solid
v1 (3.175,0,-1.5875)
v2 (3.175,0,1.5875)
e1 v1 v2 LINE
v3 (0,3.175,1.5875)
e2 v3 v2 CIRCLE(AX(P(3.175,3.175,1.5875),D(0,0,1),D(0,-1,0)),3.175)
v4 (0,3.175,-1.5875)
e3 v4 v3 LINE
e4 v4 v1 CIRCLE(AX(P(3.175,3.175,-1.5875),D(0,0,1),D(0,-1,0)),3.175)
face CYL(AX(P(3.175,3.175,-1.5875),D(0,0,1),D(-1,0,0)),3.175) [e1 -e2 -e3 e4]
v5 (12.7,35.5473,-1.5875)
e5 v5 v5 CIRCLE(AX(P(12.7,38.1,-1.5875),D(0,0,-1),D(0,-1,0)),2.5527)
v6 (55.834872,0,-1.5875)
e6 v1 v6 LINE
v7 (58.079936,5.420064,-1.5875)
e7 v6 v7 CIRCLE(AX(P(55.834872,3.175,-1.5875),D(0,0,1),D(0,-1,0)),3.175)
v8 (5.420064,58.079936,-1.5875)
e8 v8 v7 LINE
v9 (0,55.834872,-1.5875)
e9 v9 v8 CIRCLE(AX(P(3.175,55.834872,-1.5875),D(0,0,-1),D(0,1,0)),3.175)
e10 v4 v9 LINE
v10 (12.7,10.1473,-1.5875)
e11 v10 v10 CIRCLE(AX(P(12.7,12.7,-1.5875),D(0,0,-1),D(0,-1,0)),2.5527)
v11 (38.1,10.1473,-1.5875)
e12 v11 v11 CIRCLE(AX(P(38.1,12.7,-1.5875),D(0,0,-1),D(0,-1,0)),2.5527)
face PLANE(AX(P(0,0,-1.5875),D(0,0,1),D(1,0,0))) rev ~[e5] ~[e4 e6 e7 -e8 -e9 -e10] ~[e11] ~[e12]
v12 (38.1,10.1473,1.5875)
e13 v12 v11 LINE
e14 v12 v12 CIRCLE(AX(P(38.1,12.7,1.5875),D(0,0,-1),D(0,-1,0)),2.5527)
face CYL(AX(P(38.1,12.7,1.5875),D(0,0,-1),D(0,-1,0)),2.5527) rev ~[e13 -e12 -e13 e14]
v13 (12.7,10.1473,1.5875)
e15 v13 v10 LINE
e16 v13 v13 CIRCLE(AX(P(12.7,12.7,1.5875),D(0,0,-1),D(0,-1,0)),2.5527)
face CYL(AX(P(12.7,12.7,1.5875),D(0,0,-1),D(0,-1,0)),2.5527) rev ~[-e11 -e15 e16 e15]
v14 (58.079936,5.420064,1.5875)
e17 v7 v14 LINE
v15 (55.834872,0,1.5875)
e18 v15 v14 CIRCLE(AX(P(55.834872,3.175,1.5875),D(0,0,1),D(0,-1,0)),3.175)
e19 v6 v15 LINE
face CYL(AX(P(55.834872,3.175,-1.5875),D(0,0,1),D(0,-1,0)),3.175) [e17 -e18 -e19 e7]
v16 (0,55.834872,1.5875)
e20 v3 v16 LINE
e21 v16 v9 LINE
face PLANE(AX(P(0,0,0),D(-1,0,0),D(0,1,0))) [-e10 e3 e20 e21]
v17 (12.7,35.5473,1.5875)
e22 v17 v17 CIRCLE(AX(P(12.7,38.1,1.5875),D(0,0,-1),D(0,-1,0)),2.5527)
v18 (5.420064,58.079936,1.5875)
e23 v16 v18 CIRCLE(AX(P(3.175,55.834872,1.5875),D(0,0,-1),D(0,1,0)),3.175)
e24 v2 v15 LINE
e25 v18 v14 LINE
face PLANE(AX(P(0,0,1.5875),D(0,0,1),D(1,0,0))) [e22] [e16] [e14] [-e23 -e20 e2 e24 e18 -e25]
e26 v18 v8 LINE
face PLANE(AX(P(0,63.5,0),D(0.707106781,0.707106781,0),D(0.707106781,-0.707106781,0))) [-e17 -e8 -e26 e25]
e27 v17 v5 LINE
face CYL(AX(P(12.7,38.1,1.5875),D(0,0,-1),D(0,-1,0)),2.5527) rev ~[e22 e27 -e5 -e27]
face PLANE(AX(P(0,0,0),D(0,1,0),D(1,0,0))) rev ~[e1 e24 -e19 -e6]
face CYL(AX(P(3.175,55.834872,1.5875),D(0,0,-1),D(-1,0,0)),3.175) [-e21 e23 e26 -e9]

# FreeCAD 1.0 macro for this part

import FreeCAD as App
import Part
import Sketcher

V = App.Vector
Q = App.Units.Quantity


def edges_at(feature, points):
    """Names of the edges that pass closest to the given points."""
    edges = feature.Shape.Edges
    near = lambda p: min(range(len(edges)), key=lambda i: edges[i].distToShape(Part.Vertex(*p))[0])
    return sorted({f"Edge{near(p) + 1}" for p in points})

doc = App.newDocument("Part")
body = doc.addObject("PartDesign::Body", "Body")

# Sketch on XY plane
sketch1 = body.newObject("Sketcher::SketchObject", "Sketch")
sketch1.AttachmentSupport = (doc.getObject("XY_Plane"), [""])
sketch1.MapMode = "FlatFace"
sketch1.addGeometry(Part.LineSegment(V(0, 64, 0), V(0, 0, 0)), False)
sketch1.addGeometry(Part.LineSegment(V(0, 0, 0), V(64, 0, 0)), False)
sketch1.addGeometry(Part.LineSegment(V(64, 0, 0), V(0, 64, 0)), False)
sketch1.addConstraint(Sketcher.Constraint("Coincident", 0, 2, 1, 1))
sketch1.addConstraint(Sketcher.Constraint("Coincident", 1, 2, 2, 1))
sketch1.addConstraint(Sketcher.Constraint("Coincident", 2, 2, 0, 1))
sketch1.addConstraint(Sketcher.Constraint("Vertical", 0))
sketch1.addConstraint(Sketcher.Constraint("Horizontal", 1))
sketch1.addConstraint(Sketcher.Constraint("Coincident", 0, 2, -1, 1))
sketch1.addConstraint(Sketcher.Constraint("Equal", 1, 0))
sketch1.addConstraint(Sketcher.Constraint("DistanceX", 1, 1, 1, 2, Q("2.5 in")))
pad1 = body.newObject("PartDesign::Pad", "Pad")
pad1.Profile = sketch1
pad1.Length = Q("0.125 in")
pad1.Midplane = True
doc.recompute()

fillet = body.newObject("PartDesign::Fillet", "Fillet")
fillet.Base = (pad1, edges_at(pad1, [(0, 63.5, 0), (63.5, 0, 0), (0, 0, 0)]))
fillet.Radius = Q("0.125 in")

# Sketch on XY plane
sketch2 = body.newObject("Sketcher::SketchObject", "Sketch001")
sketch2.AttachmentSupport = (doc.getObject("XY_Plane"), [""])
sketch2.MapMode = "FlatFace"
sketch2.AttachmentOffset = App.Placement(V(0, 0, 0.0625 * 25.4), App.Rotation())
sketch2.addGeometry(Part.Circle(V(12.7, 12.7, 0), V(0, 0, 1), 2.6), False)
sketch2.addConstraint(Sketcher.Constraint("Diameter", 0, Q("0.201 in")))
sketch2.addConstraint(Sketcher.Constraint("DistanceX", -1, 1, 0, 3, Q("0.5 in")))
sketch2.addConstraint(Sketcher.Constraint("DistanceY", -1, 1, 0, 3, Q("0.5 in")))
doc.recompute()
hole = body.newObject("PartDesign::Hole", "Hole")
hole.Profile = sketch2
hole.ThreadType = "None"
hole.Diameter = Q("0.201 in")
hole.DepthType = "ThroughAll"
doc.recompute()

linearpattern = body.newObject("PartDesign::LinearPattern", "LinearPattern")
linearpattern.Originals = [hole]
linearpattern.Direction = (doc.getObject("X_Axis"), [""])
linearpattern.Mode = "offset"
linearpattern.Offset = Q("1 in")
linearpattern.Occurrences = 2
body.Tip = linearpattern
doc.recompute()

linearpattern2 = body.newObject("PartDesign::LinearPattern", "LinearPattern001")
linearpattern2.Originals = [hole]
linearpattern2.Direction = (doc.getObject("Y_Axis"), [""])
linearpattern2.Mode = "offset"
linearpattern2.Offset = Q("1 in")
linearpattern2.Occurrences = 2
body.Tip = linearpattern2

doc.recompute()
